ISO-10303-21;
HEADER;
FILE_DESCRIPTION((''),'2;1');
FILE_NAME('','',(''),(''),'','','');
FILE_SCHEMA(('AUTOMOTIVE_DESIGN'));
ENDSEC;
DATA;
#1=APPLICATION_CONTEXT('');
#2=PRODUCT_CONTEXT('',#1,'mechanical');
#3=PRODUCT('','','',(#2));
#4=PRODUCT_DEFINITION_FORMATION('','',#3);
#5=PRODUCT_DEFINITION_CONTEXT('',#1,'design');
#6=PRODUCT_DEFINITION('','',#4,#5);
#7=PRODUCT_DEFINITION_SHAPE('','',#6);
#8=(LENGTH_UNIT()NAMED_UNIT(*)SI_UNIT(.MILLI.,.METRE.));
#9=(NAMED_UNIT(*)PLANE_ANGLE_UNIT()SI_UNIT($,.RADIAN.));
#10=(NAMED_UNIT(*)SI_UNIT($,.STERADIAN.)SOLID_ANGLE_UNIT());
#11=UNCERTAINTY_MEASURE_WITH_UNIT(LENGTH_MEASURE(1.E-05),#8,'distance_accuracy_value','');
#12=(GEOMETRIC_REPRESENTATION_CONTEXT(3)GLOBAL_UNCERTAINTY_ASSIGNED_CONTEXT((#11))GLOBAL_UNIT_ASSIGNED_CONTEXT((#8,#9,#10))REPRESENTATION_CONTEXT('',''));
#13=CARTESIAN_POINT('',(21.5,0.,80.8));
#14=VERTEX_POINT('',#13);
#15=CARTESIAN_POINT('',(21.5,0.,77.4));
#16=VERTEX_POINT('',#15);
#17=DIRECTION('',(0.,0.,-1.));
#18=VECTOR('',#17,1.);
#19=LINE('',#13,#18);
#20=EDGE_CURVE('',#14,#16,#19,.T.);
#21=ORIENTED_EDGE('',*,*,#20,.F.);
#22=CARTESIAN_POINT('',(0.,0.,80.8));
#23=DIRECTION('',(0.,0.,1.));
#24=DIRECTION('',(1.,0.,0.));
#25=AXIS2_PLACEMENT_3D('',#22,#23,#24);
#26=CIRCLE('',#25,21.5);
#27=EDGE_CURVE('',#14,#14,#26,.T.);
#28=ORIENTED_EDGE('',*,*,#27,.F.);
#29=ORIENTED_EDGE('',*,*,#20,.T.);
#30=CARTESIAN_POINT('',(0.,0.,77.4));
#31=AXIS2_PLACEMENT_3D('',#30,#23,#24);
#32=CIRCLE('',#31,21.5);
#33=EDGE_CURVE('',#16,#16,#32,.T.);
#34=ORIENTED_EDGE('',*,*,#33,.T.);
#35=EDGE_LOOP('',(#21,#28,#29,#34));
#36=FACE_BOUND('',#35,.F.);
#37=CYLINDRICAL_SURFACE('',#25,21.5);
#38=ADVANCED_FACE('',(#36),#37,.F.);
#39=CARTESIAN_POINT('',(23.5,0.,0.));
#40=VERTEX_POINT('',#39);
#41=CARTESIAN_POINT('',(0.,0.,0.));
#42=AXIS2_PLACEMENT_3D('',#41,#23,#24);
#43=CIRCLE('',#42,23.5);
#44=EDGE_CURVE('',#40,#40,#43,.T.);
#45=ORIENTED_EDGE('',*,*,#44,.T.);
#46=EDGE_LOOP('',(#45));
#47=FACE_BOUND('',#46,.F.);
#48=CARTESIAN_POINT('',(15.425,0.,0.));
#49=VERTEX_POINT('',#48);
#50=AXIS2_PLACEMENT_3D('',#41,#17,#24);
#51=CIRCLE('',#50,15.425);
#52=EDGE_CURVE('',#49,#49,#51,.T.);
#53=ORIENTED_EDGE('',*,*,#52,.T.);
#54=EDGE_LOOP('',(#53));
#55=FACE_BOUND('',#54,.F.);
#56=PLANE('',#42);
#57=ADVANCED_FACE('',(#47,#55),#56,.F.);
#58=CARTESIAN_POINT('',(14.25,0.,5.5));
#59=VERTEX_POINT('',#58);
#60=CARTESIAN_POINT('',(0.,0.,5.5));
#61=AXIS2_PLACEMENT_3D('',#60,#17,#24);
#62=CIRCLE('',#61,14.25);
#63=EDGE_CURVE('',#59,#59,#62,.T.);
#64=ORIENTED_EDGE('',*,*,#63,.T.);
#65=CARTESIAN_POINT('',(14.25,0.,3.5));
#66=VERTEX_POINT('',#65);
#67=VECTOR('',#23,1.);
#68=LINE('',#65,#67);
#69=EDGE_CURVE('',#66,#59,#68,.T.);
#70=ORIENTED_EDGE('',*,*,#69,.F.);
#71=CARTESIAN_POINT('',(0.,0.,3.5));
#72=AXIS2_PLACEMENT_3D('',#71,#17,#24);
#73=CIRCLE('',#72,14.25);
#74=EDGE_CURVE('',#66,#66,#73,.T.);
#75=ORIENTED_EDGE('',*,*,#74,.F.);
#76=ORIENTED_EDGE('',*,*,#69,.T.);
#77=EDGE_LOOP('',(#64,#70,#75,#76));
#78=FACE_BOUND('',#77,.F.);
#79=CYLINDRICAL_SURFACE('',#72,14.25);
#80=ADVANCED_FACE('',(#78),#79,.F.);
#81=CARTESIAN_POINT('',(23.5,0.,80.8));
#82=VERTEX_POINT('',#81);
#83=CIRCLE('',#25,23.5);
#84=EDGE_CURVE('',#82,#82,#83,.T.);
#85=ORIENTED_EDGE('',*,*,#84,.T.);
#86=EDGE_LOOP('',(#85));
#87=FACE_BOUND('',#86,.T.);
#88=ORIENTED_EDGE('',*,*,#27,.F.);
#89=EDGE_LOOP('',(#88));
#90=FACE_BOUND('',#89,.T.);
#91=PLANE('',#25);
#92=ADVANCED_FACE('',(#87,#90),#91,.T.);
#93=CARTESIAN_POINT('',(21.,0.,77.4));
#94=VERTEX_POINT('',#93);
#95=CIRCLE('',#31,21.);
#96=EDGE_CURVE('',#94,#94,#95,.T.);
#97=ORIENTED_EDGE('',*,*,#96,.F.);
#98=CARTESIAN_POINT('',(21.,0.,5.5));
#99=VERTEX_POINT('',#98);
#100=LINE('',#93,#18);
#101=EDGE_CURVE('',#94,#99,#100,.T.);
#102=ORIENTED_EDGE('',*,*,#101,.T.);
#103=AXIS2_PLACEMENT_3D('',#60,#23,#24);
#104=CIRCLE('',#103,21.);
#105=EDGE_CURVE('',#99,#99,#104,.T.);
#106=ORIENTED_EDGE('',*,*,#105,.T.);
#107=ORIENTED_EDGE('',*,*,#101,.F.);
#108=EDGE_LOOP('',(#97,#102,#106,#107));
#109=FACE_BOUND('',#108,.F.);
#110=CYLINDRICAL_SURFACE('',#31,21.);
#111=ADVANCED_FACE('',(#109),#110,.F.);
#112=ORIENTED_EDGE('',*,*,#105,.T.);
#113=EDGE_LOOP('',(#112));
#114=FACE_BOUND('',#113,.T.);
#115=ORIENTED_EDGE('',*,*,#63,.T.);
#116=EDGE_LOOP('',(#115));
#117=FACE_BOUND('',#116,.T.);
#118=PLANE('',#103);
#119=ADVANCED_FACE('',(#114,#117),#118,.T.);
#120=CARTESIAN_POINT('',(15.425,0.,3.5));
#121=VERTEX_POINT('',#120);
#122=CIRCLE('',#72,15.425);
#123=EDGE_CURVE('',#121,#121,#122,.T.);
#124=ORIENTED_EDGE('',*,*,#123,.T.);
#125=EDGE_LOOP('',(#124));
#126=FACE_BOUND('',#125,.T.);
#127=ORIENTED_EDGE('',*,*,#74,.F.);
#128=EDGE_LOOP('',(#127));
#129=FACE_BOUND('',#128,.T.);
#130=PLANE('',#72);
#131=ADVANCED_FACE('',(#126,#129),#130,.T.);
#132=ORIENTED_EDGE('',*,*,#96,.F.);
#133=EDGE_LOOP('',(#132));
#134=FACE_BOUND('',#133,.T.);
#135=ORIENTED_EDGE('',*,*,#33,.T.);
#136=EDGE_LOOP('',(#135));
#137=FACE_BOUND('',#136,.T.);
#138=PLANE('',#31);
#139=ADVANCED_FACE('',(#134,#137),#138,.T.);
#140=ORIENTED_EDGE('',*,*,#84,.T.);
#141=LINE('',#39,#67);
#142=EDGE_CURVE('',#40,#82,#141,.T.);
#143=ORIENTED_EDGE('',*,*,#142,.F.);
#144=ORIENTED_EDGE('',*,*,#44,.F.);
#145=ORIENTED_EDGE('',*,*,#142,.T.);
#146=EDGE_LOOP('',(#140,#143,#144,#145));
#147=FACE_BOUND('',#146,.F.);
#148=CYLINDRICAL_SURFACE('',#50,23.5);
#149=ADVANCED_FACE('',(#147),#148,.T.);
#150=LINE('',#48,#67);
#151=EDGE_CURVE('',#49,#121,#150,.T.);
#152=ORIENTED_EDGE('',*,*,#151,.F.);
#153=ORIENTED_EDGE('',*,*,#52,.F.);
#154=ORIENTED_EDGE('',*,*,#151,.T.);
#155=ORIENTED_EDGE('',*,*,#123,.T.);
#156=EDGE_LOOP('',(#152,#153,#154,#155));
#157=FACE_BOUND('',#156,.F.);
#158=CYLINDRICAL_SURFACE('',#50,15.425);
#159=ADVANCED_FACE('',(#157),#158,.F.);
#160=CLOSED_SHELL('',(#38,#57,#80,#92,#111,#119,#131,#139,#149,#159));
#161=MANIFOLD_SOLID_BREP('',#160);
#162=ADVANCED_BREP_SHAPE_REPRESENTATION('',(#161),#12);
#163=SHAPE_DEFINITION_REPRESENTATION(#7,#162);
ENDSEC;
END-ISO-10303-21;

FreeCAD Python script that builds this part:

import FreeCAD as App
import Part
import Sketcher
Q = App.Units.Quantity

doc = App.newDocument("Part")
body = doc.addObject("PartDesign::Body", "Body")

sketch1 = body.newObject("Sketcher::SketchObject", "Sketch")
sketch1.AttachmentSupport = (doc.getObject("XY_Plane"), [""])
sketch1.MapMode = "FlatFace"
sketch1.addGeometry(Part.Circle(App.Vector(0, 0, 0), App.Vector(0, 0, 1), 23.5), False)
sketch1.addConstraint([
    Sketcher.Constraint("Coincident", 0, 3, -1, 1),
    Sketcher.Constraint("Diameter", 0, Q("47 mm")),
])
pad1 = body.newObject("PartDesign::Pad", "Pad")
pad1.Profile = sketch1
pad1.Length = 80.8

sketch2 = body.newObject("Sketcher::SketchObject", "Sketch001")
sketch2.AttachmentSupport = (doc.getObject("XY_Plane"), [""])
sketch2.MapMode = "FlatFace"
sketch2.AttachmentOffset = App.Placement(App.Vector(0, 0, 80.8), App.Rotation())
sketch2.addGeometry(Part.Circle(App.Vector(0, 0, 0), App.Vector(0, 0, 1), 21.5), False)
sketch2.addConstraint([
    Sketcher.Constraint("Coincident", 0, 3, -1, 1),
    Sketcher.Constraint("Diameter", 0, Q("43 mm")),
])
pocket1 = body.newObject("PartDesign::Pocket", "Pocket")
pocket1.Profile = sketch2
pocket1.Length = 3.4

sketch3 = body.newObject("Sketcher::SketchObject", "Sketch002")
sketch3.AttachmentSupport = (doc.getObject("XY_Plane"), [""])
sketch3.MapMode = "FlatFace"
sketch3.addGeometry(Part.Circle(App.Vector(0, 0, 0), App.Vector(0, 0, 1), 15.425), False)
sketch3.addConstraint([
    Sketcher.Constraint("Coincident", 0, 3, -1, 1),
    Sketcher.Constraint("Diameter", 0, Q("30.85 mm")),
])
pocket2 = body.newObject("PartDesign::Pocket", "Pocket001")
pocket2.Profile = sketch3
pocket2.Length = 3.5
pocket2.Reversed = True

sketch4 = body.newObject("Sketcher::SketchObject", "Sketch003")
sketch4.AttachmentSupport = (doc.getObject("XY_Plane"), [""])
sketch4.MapMode = "FlatFace"
sketch4.AttachmentOffset = App.Placement(App.Vector(0, 0, 3.5), App.Rotation())
sketch4.addGeometry(Part.Circle(App.Vector(0, 0, 0), App.Vector(0, 0, 1), 14.25), False)
sketch4.addConstraint([
    Sketcher.Constraint("Coincident", 0, 3, -1, 1),
    Sketcher.Constraint("Diameter", 0, Q("28.5 mm")),
])
pocket3 = body.newObject("PartDesign::Pocket", "Pocket002")
pocket3.Profile = sketch4
pocket3.Type = "ThroughAll"
pocket3.Reversed = True

sketch5 = body.newObject("Sketcher::SketchObject", "Sketch004")
sketch5.AttachmentSupport = (doc.getObject("XY_Plane"), [""])
sketch5.MapMode = "FlatFace"
sketch5.AttachmentOffset = App.Placement(App.Vector(0, 0, 77.4), App.Rotation())
sketch5.addGeometry(Part.Circle(App.Vector(0, 0, 0), App.Vector(0, 0, 1), 21), False)
sketch5.addConstraint([
    Sketcher.Constraint("Coincident", 0, 3, -1, 1),
    Sketcher.Constraint("Diameter", 0, Q("42 mm")),
])
pocket4 = body.newObject("PartDesign::Pocket", "Pocket003")
pocket4.Profile = sketch5
pocket4.Length = 71.9

doc.recompute()
